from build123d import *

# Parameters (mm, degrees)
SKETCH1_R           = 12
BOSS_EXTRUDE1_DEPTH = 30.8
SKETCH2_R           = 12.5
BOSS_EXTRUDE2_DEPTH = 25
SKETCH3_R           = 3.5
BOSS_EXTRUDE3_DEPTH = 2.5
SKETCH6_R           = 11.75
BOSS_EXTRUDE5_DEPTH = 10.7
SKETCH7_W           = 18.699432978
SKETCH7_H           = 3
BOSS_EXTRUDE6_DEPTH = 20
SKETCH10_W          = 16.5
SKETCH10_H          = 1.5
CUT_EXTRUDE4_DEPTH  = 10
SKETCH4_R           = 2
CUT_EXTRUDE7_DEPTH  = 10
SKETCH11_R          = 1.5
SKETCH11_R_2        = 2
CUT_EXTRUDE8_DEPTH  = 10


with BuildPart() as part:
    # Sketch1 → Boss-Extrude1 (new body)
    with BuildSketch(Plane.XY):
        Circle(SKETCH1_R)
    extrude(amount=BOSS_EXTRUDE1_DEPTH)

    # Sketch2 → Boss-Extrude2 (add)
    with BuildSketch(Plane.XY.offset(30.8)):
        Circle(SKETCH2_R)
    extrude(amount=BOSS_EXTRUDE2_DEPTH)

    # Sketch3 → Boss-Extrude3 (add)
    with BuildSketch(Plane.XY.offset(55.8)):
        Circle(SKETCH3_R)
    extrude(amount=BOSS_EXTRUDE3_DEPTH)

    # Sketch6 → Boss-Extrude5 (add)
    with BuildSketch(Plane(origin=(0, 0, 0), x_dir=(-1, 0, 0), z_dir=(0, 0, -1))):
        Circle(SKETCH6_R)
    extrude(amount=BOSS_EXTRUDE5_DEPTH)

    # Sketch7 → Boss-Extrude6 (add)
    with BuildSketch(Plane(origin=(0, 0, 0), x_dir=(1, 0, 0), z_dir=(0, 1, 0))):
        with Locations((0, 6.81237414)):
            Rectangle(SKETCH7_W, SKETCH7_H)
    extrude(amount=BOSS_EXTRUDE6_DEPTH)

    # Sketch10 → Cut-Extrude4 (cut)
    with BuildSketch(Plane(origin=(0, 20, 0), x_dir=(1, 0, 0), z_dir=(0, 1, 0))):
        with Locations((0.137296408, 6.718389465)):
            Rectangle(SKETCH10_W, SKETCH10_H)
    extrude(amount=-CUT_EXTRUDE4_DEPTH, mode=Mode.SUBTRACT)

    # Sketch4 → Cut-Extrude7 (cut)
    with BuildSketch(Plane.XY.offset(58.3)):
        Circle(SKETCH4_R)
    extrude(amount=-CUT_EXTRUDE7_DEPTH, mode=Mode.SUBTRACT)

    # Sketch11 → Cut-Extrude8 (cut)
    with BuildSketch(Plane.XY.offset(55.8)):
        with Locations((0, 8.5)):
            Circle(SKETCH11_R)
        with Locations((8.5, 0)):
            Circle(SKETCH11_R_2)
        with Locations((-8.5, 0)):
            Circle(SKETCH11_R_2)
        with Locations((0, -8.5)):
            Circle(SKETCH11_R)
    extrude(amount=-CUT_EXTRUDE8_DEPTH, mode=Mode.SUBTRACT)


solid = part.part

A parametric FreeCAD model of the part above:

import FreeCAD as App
import Part
import Sketcher

V = App.Vector

doc = App.newDocument("Part")
body = doc.addObject("PartDesign::Body", "Body")

sketch1 = body.newObject("Sketcher::SketchObject", "Sketch")
sketch1.AttachmentSupport = (doc.getObject("XY_Plane"), [""])
sketch1.MapMode = "FlatFace"
sketch1.addGeometry(Part.Circle(V(0, 0, 0), V(0, 0, 1), 12), False)
sketch1.addConstraint([
    Sketcher.Constraint("Coincident", 0, 3, -1, 1),
    Sketcher.Constraint("Diameter", 0, 24.0),
])
pad1 = body.newObject("PartDesign::Pad", "Pad")
pad1.Profile = sketch1
pad1.Length = 30.8

sketch2 = body.newObject("Sketcher::SketchObject", "Sketch001")
sketch2.AttachmentSupport = (doc.getObject("XY_Plane"), [""])
sketch2.MapMode = "FlatFace"
sketch2.AttachmentOffset = App.Placement(V(0, 0, 30.8), App.Rotation())
sketch2.addGeometry(Part.Circle(V(0, 0, 0), V(0, 0, 1), 12), False)
sketch2.addConstraint([
    Sketcher.Constraint("Coincident", 0, 3, -1, 1),
    Sketcher.Constraint("Diameter", 0, 25.0),
])
pad2 = body.newObject("PartDesign::Pad", "Pad001")
pad2.Profile = sketch2
pad2.Length = 25

sketch3 = body.newObject("Sketcher::SketchObject", "Sketch002")
sketch3.AttachmentSupport = (doc.getObject("XY_Plane"), [""])
sketch3.MapMode = "FlatFace"
sketch3.AttachmentOffset = App.Placement(V(0, 0, 55.8), App.Rotation())
sketch3.addGeometry(Part.Circle(V(0, 0, 0), V(0, 0, 1), 3.5), False)
sketch3.addConstraint([
    Sketcher.Constraint("Coincident", 0, 3, -1, 1),
    Sketcher.Constraint("Diameter", 0, 7.0),
])
pad3 = body.newObject("PartDesign::Pad", "Pad002")
pad3.Profile = sketch3
pad3.Length = 2.5

sketch4 = body.newObject("Sketcher::SketchObject", "Sketch003")
sketch4.AttachmentSupport = (doc.getObject("XY_Plane"), [""])
sketch4.MapMode = "FlatFace"
sketch4.addGeometry(Part.Circle(V(0, 0, 0), V(0, 0, 1), 12), False)
sketch4.addConstraint([
    Sketcher.Constraint("Coincident", 0, 3, -1, 1),
    Sketcher.Constraint("Diameter", 0, 23.5),
])
pad4 = body.newObject("PartDesign::Pad", "Pad003")
pad4.Profile = sketch4
pad4.Length = 10.7
pad4.Reversed = True

sketch5 = body.newObject("Sketcher::SketchObject", "Sketch004")
sketch5.AttachmentSupport = (doc.getObject("XZ_Plane"), [""])
sketch5.MapMode = "FlatFace"
sketch5.addGeometry([
    Part.LineSegment(V(-9.3, -8.3, 0), V(-9.3, -5.3, 0)),
    Part.LineSegment(V(-9.3, -5.3, 0), V(9.3, -5.3, 0)),
    Part.LineSegment(V(9.3, -5.3, 0), V(9.3, -8.3, 0)),
    Part.LineSegment(V(9.3, -8.3, 0), V(-9.3, -8.3, 0)),
], False)
sketch5.addConstraint([
    Sketcher.Constraint("Coincident", 0, 2, 1, 1),
    Sketcher.Constraint("Coincident", 1, 2, 2, 1),
    Sketcher.Constraint("Coincident", 2, 2, 3, 1),
    Sketcher.Constraint("Coincident", 3, 2, 0, 1),
    Sketcher.Constraint("Vertical", 0),
    Sketcher.Constraint("Horizontal", 1),
    Sketcher.Constraint("Vertical", 2),
    Sketcher.Constraint("Horizontal", 3),
    Sketcher.Constraint("DistanceY", 0, 1, 0, 2, 3.0),
    Sketcher.Constraint("DistanceX", 1, 1, 1, 2, 18.699433),
    Sketcher.Constraint("DistanceX", 0, 2, -1, 1, 9.349716),
    Sketcher.Constraint("DistanceY", 0, 2, -1, 1, 5.312374),
])
pad5 = body.newObject("PartDesign::Pad", "Pad004")
pad5.Profile = sketch5
pad5.Length = 20
pad5.Reversed = True

sketch6 = body.newObject("Sketcher::SketchObject", "Sketch005")
sketch6.AttachmentSupport = (doc.getObject("XZ_Plane"), [""])
sketch6.MapMode = "FlatFace"
sketch6.AttachmentOffset = App.Placement(V(0, 0, -20), App.Rotation())
sketch6.addGeometry([
    Part.LineSegment(V(-8.1, -7.5, 0), V(-8.1, -6, 0)),
    Part.LineSegment(V(-8.1, -6, 0), V(8.4, -6, 0)),
    Part.LineSegment(V(8.4, -6, 0), V(8.4, -7.5, 0)),
    Part.LineSegment(V(8.4, -7.5, 0), V(-8.1, -7.5, 0)),
], False)
sketch6.addConstraint([
    Sketcher.Constraint("Coincident", 0, 2, 1, 1),
    Sketcher.Constraint("Coincident", 1, 2, 2, 1),
    Sketcher.Constraint("Coincident", 2, 2, 3, 1),
    Sketcher.Constraint("Coincident", 3, 2, 0, 1),
    Sketcher.Constraint("Vertical", 0),
    Sketcher.Constraint("Horizontal", 1),
    Sketcher.Constraint("Vertical", 2),
    Sketcher.Constraint("Horizontal", 3),
    Sketcher.Constraint("DistanceX", 1, 1, 1, 2, 16.5),
    Sketcher.Constraint("DistanceY", 0, 1, 0, 2, 1.5),
    Sketcher.Constraint("DistanceY", 0, 2, -1, 1, 5.968389),
    Sketcher.Constraint("DistanceX", 0, 2, -1, 1, 8.112704),
])
pocket1 = body.newObject("PartDesign::Pocket", "Pocket")
pocket1.Profile = sketch6
pocket1.Length = 10
pocket1.Reversed = True

sketch7 = body.newObject("Sketcher::SketchObject", "Sketch006")
sketch7.AttachmentSupport = (doc.getObject("XY_Plane"), [""])
sketch7.MapMode = "FlatFace"
sketch7.AttachmentOffset = App.Placement(V(0, 0, 58.3), App.Rotation())
sketch7.addGeometry(Part.Circle(V(0, 0, 0), V(0, 0, 1), 2), False)
sketch7.addConstraint([
    Sketcher.Constraint("Coincident", 0, 3, -1, 1),
    Sketcher.Constraint("Diameter", 0, 4.0),
])
pocket2 = body.newObject("PartDesign::Pocket", "Pocket001")
pocket2.Profile = sketch7
pocket2.Length = 10

sketch8 = body.newObject("Sketcher::SketchObject", "Sketch007")
sketch8.AttachmentSupport = (doc.getObject("XY_Plane"), [""])
sketch8.MapMode = "FlatFace"
sketch8.AttachmentOffset = App.Placement(V(0, 0, 55.8), App.Rotation())
sketch8.addGeometry([
    Part.Circle(V(0, 8.5, 0), V(0, 0, 1), 1.5),
    Part.Circle(V(8.5, 0, 0), V(0, 0, 1), 2),
    Part.Circle(V(-8.5, 0, 0), V(0, 0, 1), 2),
    Part.Circle(V(0, -8.5, 0), V(0, 0, 1), 1.5),
], False)
sketch8.addConstraint([
    Sketcher.Constraint("Equal", 1, 2),
    Sketcher.Constraint("Equal", 0, 3),
    Sketcher.Constraint("Symmetric", 1, 3, 2, 3, -1, 1),
    Sketcher.Constraint("Symmetric", 0, 3, 3, 3, -1, 1),
    Sketcher.Constraint("PointOnObject", 0, 3, -2),
    Sketcher.Constraint("PointOnObject", 1, 3, -1),
    Sketcher.Constraint("Diameter", 0, 3.0),
    Sketcher.Constraint("Diameter", 1, 4.0),
    Sketcher.Constraint("DistanceX", 2, 3, 1, 3, 17.0),
    Sketcher.Constraint("DistanceY", 3, 3, 0, 3, 17.0),
])
pocket3 = body.newObject("PartDesign::Pocket", "Pocket002")
pocket3.Profile = sketch8
pocket3.Length = 10

doc.recompute()
